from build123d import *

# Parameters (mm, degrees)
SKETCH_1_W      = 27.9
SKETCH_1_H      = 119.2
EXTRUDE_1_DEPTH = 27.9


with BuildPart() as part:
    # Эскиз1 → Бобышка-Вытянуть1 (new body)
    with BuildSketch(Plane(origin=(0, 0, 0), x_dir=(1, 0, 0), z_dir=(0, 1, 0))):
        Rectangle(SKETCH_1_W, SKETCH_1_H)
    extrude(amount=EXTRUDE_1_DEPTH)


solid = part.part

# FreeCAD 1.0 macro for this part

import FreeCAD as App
import Part
import Sketcher
from FreeCAD import Vector
Q = App.Units.Quantity

doc = App.newDocument("Part")
body = doc.addObject("PartDesign::Body", "Body")

sketch1 = body.newObject("Sketcher::SketchObject", "Sketch")
sketch1.AttachmentSupport = (doc.getObject("XZ_Plane"), [""])
sketch1.MapMode = "FlatFace"
sketch1.addGeometry([
    Part.LineSegment(Vector(-13.95, -59.6, 0), Vector(-13.95, 59.6, 0)),
    Part.LineSegment(Vector(-13.95, 59.6, 0), Vector(13.95, 59.6, 0)),
    Part.LineSegment(Vector(13.95, 59.6, 0), Vector(13.95, -59.6, 0)),
    Part.LineSegment(Vector(13.95, -59.6, 0), Vector(-13.95, -59.6, 0)),
], False)
sketch1.addConstraint([
    Sketcher.Constraint("Coincident", 0, 2, 1, 1),
    Sketcher.Constraint("Coincident", 1, 2, 2, 1),
    Sketcher.Constraint("Coincident", 2, 2, 3, 1),
    Sketcher.Constraint("Coincident", 3, 2, 0, 1),
    Sketcher.Constraint("Vertical", 0),
    Sketcher.Constraint("Horizontal", 1),
    Sketcher.Constraint("Vertical", 2),
    Sketcher.Constraint("Horizontal", 3),
    Sketcher.Constraint("Symmetric", 0, 2, 2, 2, -1, 1),
    Sketcher.Constraint("DistanceX", 1, 1, 1, 2, Q("27.9 mm")),
    Sketcher.Constraint("DistanceY", 0, 1, 0, 2, Q("119.2 mm")),
])
pad1 = body.newObject("PartDesign::Pad", "Pad")
pad1.Profile = sketch1
pad1.Length = 27.9
pad1.Reversed = True

doc.recompute()
